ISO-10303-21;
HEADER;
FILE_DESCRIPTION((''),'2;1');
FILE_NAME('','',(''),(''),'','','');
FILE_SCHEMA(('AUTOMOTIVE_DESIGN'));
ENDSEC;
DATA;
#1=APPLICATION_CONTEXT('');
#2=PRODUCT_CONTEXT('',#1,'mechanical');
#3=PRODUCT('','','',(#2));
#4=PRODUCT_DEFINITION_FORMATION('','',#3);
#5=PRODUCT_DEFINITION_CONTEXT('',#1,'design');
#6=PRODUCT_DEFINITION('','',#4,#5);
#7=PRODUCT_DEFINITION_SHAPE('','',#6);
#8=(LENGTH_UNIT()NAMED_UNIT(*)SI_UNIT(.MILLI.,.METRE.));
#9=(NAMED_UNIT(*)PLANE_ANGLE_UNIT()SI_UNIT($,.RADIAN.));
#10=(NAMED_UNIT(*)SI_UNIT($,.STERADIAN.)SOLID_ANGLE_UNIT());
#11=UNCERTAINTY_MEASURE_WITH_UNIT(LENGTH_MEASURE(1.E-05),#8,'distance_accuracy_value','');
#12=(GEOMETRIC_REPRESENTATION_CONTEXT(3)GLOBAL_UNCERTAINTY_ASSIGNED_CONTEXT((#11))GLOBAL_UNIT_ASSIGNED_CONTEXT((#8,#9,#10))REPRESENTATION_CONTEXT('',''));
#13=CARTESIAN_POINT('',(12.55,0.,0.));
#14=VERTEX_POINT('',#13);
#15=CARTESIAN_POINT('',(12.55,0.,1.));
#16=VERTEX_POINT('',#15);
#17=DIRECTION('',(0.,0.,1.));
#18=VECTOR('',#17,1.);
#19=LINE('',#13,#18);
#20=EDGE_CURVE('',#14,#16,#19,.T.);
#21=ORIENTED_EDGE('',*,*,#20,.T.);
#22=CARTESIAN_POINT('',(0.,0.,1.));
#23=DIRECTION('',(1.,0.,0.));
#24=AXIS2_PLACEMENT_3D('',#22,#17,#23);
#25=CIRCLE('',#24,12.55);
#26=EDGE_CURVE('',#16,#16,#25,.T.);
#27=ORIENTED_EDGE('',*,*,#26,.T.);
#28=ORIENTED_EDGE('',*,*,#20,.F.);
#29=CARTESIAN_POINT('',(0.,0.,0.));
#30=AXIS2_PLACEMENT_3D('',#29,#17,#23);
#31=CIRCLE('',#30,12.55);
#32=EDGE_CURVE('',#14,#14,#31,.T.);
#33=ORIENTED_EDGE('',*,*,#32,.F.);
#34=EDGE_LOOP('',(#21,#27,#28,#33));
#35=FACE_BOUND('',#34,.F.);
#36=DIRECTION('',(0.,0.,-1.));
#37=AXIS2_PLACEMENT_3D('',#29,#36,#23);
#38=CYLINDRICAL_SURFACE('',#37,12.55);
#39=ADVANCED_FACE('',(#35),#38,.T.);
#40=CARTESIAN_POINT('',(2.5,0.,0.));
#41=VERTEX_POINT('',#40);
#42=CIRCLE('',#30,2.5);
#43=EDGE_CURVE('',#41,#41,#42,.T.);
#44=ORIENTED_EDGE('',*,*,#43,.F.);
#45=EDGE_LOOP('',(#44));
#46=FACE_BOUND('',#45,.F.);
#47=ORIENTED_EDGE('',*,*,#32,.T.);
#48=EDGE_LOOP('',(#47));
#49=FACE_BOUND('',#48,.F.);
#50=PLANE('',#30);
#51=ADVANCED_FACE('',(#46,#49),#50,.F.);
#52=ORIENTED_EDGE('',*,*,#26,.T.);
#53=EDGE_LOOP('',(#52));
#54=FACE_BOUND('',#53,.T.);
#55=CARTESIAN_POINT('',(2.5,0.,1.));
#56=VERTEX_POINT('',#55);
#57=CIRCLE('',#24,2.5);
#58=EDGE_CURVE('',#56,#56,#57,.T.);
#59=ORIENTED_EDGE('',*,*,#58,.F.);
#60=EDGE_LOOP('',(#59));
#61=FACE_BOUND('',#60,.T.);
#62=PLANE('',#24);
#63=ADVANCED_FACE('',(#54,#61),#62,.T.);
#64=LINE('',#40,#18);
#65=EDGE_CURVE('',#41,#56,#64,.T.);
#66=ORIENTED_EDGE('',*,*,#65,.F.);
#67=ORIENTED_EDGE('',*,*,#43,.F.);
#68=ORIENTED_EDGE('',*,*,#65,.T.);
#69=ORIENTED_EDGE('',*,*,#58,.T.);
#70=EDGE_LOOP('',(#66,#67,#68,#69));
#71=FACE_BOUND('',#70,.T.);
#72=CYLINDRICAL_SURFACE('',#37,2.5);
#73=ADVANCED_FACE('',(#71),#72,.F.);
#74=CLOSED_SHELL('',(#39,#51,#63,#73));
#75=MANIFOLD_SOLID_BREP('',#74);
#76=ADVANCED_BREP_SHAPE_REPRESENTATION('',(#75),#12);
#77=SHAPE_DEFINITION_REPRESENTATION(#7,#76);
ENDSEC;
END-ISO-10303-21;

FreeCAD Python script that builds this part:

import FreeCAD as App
import Part
import Sketcher
from FreeCAD import Vector

doc = App.newDocument("Part")
body = doc.addObject("PartDesign::Body", "Body")

# Sketch on XY plane
sketch1 = body.newObject("Sketcher::SketchObject", "Sketch")
sketch1.AttachmentSupport = (doc.getObject("XY_Plane"), [""])
sketch1.MapMode = "FlatFace"
sketch1.addGeometry([
    Part.Circle(Vector(0, 0, 0), Vector(0, 0, 1), 12.6),
    Part.Circle(Vector(0, 0, 0), Vector(0, 0, 1), 2.5),
], False)
sketch1.addConstraint([
    Sketcher.Constraint("Coincident", 0, 3, -1, 1),
    Sketcher.Constraint("Coincident", 1, 3, -1, 1),
    Sketcher.Constraint("Diameter", 1, 5.0),
    Sketcher.Constraint("Diameter", 0, 25.1),
])
pad1 = body.newObject("PartDesign::Pad", "Pad")
pad1.Profile = sketch1
pad1.Length = 1

doc.recompute()
